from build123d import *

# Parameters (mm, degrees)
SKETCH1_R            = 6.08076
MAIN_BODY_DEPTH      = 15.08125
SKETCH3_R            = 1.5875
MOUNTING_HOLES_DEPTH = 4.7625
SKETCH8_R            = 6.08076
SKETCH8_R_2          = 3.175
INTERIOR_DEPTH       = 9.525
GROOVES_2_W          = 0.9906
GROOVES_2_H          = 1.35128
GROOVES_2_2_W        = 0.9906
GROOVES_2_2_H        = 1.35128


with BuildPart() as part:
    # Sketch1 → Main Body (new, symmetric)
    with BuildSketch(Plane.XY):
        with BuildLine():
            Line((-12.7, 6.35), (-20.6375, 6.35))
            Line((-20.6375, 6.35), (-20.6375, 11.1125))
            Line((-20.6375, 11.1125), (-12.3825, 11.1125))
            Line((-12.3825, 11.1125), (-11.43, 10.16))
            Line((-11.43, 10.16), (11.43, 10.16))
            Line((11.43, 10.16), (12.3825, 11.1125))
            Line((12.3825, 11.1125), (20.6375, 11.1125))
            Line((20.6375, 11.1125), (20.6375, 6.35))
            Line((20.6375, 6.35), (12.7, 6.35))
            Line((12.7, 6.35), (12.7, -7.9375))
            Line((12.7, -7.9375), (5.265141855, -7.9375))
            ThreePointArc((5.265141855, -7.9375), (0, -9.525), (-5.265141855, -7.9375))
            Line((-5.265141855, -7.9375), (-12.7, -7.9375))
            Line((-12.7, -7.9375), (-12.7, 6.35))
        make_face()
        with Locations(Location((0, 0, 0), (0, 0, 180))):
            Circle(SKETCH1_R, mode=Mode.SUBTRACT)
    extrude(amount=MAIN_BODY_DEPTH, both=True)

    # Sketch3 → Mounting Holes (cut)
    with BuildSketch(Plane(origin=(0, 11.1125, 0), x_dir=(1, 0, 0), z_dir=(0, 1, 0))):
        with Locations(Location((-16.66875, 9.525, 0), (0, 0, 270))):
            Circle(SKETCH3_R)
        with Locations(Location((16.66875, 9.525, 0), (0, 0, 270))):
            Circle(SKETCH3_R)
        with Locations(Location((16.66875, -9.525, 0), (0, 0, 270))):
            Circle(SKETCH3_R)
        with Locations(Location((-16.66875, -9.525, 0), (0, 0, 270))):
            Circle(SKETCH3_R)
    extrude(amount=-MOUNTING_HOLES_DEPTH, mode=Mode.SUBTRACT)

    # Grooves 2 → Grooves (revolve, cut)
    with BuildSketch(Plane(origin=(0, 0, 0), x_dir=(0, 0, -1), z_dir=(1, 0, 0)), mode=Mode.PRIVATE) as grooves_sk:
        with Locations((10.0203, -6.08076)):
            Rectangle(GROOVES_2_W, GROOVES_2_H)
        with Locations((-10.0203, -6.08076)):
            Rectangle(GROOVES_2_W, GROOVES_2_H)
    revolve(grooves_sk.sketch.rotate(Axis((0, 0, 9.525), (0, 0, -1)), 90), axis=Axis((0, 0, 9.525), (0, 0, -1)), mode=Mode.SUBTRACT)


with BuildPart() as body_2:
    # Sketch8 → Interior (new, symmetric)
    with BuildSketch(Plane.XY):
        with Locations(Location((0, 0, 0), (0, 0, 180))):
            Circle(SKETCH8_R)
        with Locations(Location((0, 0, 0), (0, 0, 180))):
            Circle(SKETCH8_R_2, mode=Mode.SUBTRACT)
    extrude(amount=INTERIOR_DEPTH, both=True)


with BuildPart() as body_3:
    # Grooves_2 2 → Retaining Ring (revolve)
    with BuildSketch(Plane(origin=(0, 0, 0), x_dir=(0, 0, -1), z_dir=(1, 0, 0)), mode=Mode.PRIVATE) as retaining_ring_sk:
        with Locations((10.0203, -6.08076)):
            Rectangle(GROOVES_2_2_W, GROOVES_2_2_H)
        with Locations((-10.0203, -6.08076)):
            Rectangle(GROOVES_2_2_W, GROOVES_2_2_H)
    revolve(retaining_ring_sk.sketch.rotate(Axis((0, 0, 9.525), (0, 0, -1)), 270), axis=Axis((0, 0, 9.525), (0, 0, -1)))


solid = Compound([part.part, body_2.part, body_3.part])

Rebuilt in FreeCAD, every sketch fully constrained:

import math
import FreeCAD as App
import Part
import Sketcher
from FreeCAD import Vector
Q = App.Units.Quantity

doc = App.newDocument("Part")
body = doc.addObject("PartDesign::Body", "Body")

# Sketch on XY plane
sketch1 = doc.addObject("Sketcher::SketchObject", "Sketch")
body.addObject(sketch1)
sketch1.AttachmentSupport = (doc.XY_Plane, [""])
sketch1.MapMode = "FlatFace"
sketch1.addGeometry(Part.LineSegment(Vector(-20.6, 6.3, 0), Vector(-12.7, 6.3, 0)), False)
sketch1.addGeometry(Part.LineSegment(Vector(-12.7, 6.3, 0), Vector(-12.7, -7.9, 0)), False)
sketch1.addGeometry(Part.LineSegment(Vector(-12.7, -7.9, 0), Vector(-5.3, -7.9, 0)), False)
sketch1.addGeometry(Part.ArcOfCircle(Part.Circle(Vector(0, 0, 0), Vector(0, 0, 1), 9.5), math.radians(-124), math.radians(-56)), False)
sketch1.addGeometry(Part.LineSegment(Vector(5.3, -7.9, 0), Vector(12.7, -7.9, 0)), False)
sketch1.addGeometry(Part.LineSegment(Vector(12.7, -7.9, 0), Vector(12.7, 6.3, 0)), False)
sketch1.addGeometry(Part.LineSegment(Vector(12.7, 6.3, 0), Vector(20.6, 6.3, 0)), False)
sketch1.addGeometry(Part.LineSegment(Vector(20.6, 6.3, 0), Vector(20.6, 11.1, 0)), False)
sketch1.addGeometry(Part.LineSegment(Vector(20.6, 11.1, 0), Vector(12.4, 11.1, 0)), False)
sketch1.addGeometry(Part.LineSegment(Vector(12.4, 11.1, 0), Vector(11.4, 10.2, 0)), False)
sketch1.addGeometry(Part.LineSegment(Vector(11.4, 10.2, 0), Vector(-11.4, 10.2, 0)), False)
sketch1.addGeometry(Part.LineSegment(Vector(-11.4, 10.2, 0), Vector(-12.4, 11.1, 0)), False)
sketch1.addGeometry(Part.LineSegment(Vector(-12.4, 11.1, 0), Vector(-20.6, 11.1, 0)), False)
sketch1.addGeometry(Part.LineSegment(Vector(-20.6, 11.1, 0), Vector(-20.6, 6.3, 0)), False)
sketch1.addGeometry(Part.Circle(Vector(0, 0, 0), Vector(0, 0, 1), 6.1), False)
sketch1.addConstraint(Sketcher.Constraint("Coincident", 0, 2, 1, 1))
sketch1.addConstraint(Sketcher.Constraint("Coincident", 1, 2, 2, 1))
sketch1.addConstraint(Sketcher.Constraint("Coincident", 2, 2, 3, 1))
sketch1.addConstraint(Sketcher.Constraint("Coincident", 3, 2, 4, 1))
sketch1.addConstraint(Sketcher.Constraint("Coincident", 4, 2, 5, 1))
sketch1.addConstraint(Sketcher.Constraint("Coincident", 5, 2, 6, 1))
sketch1.addConstraint(Sketcher.Constraint("Coincident", 6, 2, 7, 1))
sketch1.addConstraint(Sketcher.Constraint("Coincident", 7, 2, 8, 1))
sketch1.addConstraint(Sketcher.Constraint("Coincident", 8, 2, 9, 1))
sketch1.addConstraint(Sketcher.Constraint("Coincident", 9, 2, 10, 1))
sketch1.addConstraint(Sketcher.Constraint("Coincident", 10, 2, 11, 1))
sketch1.addConstraint(Sketcher.Constraint("Coincident", 11, 2, 12, 1))
sketch1.addConstraint(Sketcher.Constraint("Coincident", 12, 2, 13, 1))
sketch1.addConstraint(Sketcher.Constraint("Coincident", 13, 2, 0, 1))
sketch1.addConstraint(Sketcher.Constraint("Horizontal", 0))
sketch1.addConstraint(Sketcher.Constraint("Vertical", 1))
sketch1.addConstraint(Sketcher.Constraint("Horizontal", 2))
sketch1.addConstraint(Sketcher.Constraint("Horizontal", 4))
sketch1.addConstraint(Sketcher.Constraint("Vertical", 5))
sketch1.addConstraint(Sketcher.Constraint("Horizontal", 6))
sketch1.addConstraint(Sketcher.Constraint("Vertical", 7))
sketch1.addConstraint(Sketcher.Constraint("Horizontal", 8))
sketch1.addConstraint(Sketcher.Constraint("Horizontal", 10))
sketch1.addConstraint(Sketcher.Constraint("Horizontal", 12))
sketch1.addConstraint(Sketcher.Constraint("Vertical", 13))
sketch1.addConstraint(Sketcher.Constraint("Coincident", 3, 3, -1, 1))
sketch1.addConstraint(Sketcher.Constraint("Coincident", 14, 3, -1, 1))
sketch1.addConstraint(Sketcher.Constraint("Symmetric", 1, 2, 4, 2, -2))
sketch1.addConstraint(Sketcher.Constraint("Symmetric", 8, 2, 11, 2, -2))
sketch1.addConstraint(Sketcher.Constraint("Symmetric", 6, 2, 13, 2, -2))
sketch1.addConstraint(Sketcher.Constraint("Perpendicular", 9, 11))
sketch1.addConstraint(Sketcher.Constraint("Equal", 9, 11))
sketch1.addConstraint(Sketcher.Constraint("DistanceX", 10, 2, 10, 1, Q("0.9 in")))
sketch1.addConstraint(Sketcher.Constraint("Radius", 3, Q("0.375 in")))
sketch1.addConstraint(Sketcher.Constraint("DistanceX", 1, 2, 4, 2, Q("1 in")))
sketch1.addConstraint(Sketcher.Constraint("Diameter", 14, Q("0.4788 in")))
sketch1.addConstraint(Sketcher.Constraint("DistanceY", -1, 1, 9, 2, Q("0.4 in")))
sketch1.addConstraint(Sketcher.Constraint("DistanceX", 0, 1, 0, 2, Q("0.3125 in")))
sketch1.addConstraint(Sketcher.Constraint("DistanceX", 8, 2, 8, 1, Q("0.325 in")))
sketch1.addConstraint(Sketcher.Constraint("DistanceY", 1, 2, 1, 1, Q("0.5625 in")))
sketch1.addConstraint(Sketcher.Constraint("DistanceY", 7, 1, 7, 2, Q("0.1875 in")))
pad1 = doc.addObject("PartDesign::Pad", "Pad")
body.addObject(pad1)
pad1.Profile = sketch1
pad1.Length = Q("1.1875 in")
pad1.Midplane = True

# Sketch on XZ plane
sketch2 = doc.addObject("Sketcher::SketchObject", "Sketch001")
body.addObject(sketch2)
sketch2.AttachmentSupport = (doc.XZ_Plane, [""])
sketch2.MapMode = "FlatFace"
sketch2.AttachmentOffset = App.Placement(Vector(0, 0, -0.4375 * 25.4), App.Rotation())
sketch2.addGeometry(Part.Circle(Vector(-16.7, -9.5, 0), Vector(0, 0, 1), 1.6), False)
sketch2.addGeometry(Part.Circle(Vector(16.7, -9.5, 0), Vector(0, 0, 1), 1.6), False)
sketch2.addGeometry(Part.Circle(Vector(16.7, 9.5, 0), Vector(0, 0, 1), 1.6), False)
sketch2.addGeometry(Part.Circle(Vector(-16.7, 9.5, 0), Vector(0, 0, 1), 1.6), False)
sketch2.addConstraint(Sketcher.Constraint("Equal", 0, 1))
sketch2.addConstraint(Sketcher.Constraint("Equal", 1, 2))
sketch2.addConstraint(Sketcher.Constraint("Equal", 2, 3))
sketch2.addConstraint(Sketcher.Constraint("Symmetric", 0, 3, 2, 3, -1, 1))
sketch2.addConstraint(Sketcher.Constraint("Symmetric", 1, 3, 3, 3, -1, 1))
sketch2.addConstraint(Sketcher.Constraint("Symmetric", 0, 3, 1, 3, -2))
sketch2.addConstraint(Sketcher.Constraint("Diameter", 0, Q("0.125 in")))
sketch2.addConstraint(Sketcher.Constraint("DistanceY", 1, 3, 2, 3, Q("0.75 in")))
sketch2.addConstraint(Sketcher.Constraint("DistanceX", 0, 3, -1, 1, Q("0.65625 in")))
pocket1 = doc.addObject("PartDesign::Pocket", "Pocket")
body.addObject(pocket1)
pocket1.Profile = sketch2
pocket1.Length = Q("0.1875 in")
pocket1.Reversed = True

# Sketch on YZ plane
sketch3 = doc.addObject("Sketcher::SketchObject", "Sketch002")
body.addObject(sketch3)
sketch3.AttachmentSupport = (doc.YZ_Plane, [""])
sketch3.MapMode = "FlatFace"
sketch3.addGeometry(Part.LineSegment(Vector(-5.4, -9.5, 0), Vector(-6.8, -9.5, 0)), False)
sketch3.addGeometry(Part.LineSegment(Vector(-6.8, -9.5, 0), Vector(-6.8, -10.5, 0)), False)
sketch3.addGeometry(Part.LineSegment(Vector(-6.8, -10.5, 0), Vector(-5.4, -10.5, 0)), False)
sketch3.addGeometry(Part.LineSegment(Vector(-5.4, -10.5, 0), Vector(-5.4, -9.5, 0)), False)
sketch3.addGeometry(Part.LineSegment(Vector(-5.4, 10.5, 0), Vector(-6.8, 10.5, 0)), False)
sketch3.addGeometry(Part.LineSegment(Vector(-6.8, 10.5, 0), Vector(-6.8, 9.5, 0)), False)
sketch3.addGeometry(Part.LineSegment(Vector(-6.8, 9.5, 0), Vector(-5.4, 9.5, 0)), False)
sketch3.addGeometry(Part.LineSegment(Vector(-5.4, 9.5, 0), Vector(-5.4, 10.5, 0)), False)
sketch3.addConstraint(Sketcher.Constraint("Coincident", 0, 2, 1, 1))
sketch3.addConstraint(Sketcher.Constraint("Coincident", 1, 2, 2, 1))
sketch3.addConstraint(Sketcher.Constraint("Coincident", 2, 2, 3, 1))
sketch3.addConstraint(Sketcher.Constraint("Coincident", 3, 2, 0, 1))
sketch3.addConstraint(Sketcher.Constraint("Coincident", 4, 2, 5, 1))
sketch3.addConstraint(Sketcher.Constraint("Coincident", 5, 2, 6, 1))
sketch3.addConstraint(Sketcher.Constraint("Coincident", 6, 2, 7, 1))
sketch3.addConstraint(Sketcher.Constraint("Coincident", 7, 2, 4, 1))
sketch3.addConstraint(Sketcher.Constraint("Horizontal", 0))
sketch3.addConstraint(Sketcher.Constraint("Vertical", 1))
sketch3.addConstraint(Sketcher.Constraint("Horizontal", 2))
sketch3.addConstraint(Sketcher.Constraint("Vertical", 3))
sketch3.addConstraint(Sketcher.Constraint("Horizontal", 4))
sketch3.addConstraint(Sketcher.Constraint("Vertical", 5))
sketch3.addConstraint(Sketcher.Constraint("Horizontal", 6))
sketch3.addConstraint(Sketcher.Constraint("Vertical", 7))
sketch3.addConstraint(Sketcher.Constraint("Symmetric", 1, 2, 4, 2, -1))
sketch3.addConstraint(Sketcher.Constraint("Symmetric", 3, 2, 6, 2, -1))
sketch3.addConstraint(Sketcher.Constraint("DistanceY", 1, 2, 1, 1, Q("0.039 in")))
sketch3.addConstraint(Sketcher.Constraint("DistanceY", 0, 2, 5, 2, Q("0.75 in")))
sketch3.addConstraint(Sketcher.Constraint("DistanceX", 0, 2, 0, 1, Q("0.0532 in")))
sketch3.addConstraint(Sketcher.Constraint("DistanceX", 0, 2, -1, 1, Q("0.266 in")))
groove = doc.addObject("PartDesign::Groove", "Groove")
body.addObject(groove)
groove.Profile = sketch3
groove.ReferenceAxis = (sketch3, ["V_Axis"])
groove.Angle = 360
body2 = doc.addObject("PartDesign::Body", "Body001")

# Sketch on XY plane
sketch4 = doc.addObject("Sketcher::SketchObject", "Sketch003")
body2.addObject(sketch4)
sketch4.AttachmentSupport = (doc.getObject("XY_Plane001"), [""])
sketch4.MapMode = "FlatFace"
sketch4.addGeometry(Part.Circle(Vector(0, 0, 0), Vector(0, 0, 1), 6.1), False)
sketch4.addGeometry(Part.Circle(Vector(0, 0, 0), Vector(0, 0, 1), 3.2), False)
sketch4.addConstraint(Sketcher.Constraint("Coincident", 0, 3, -1, 1))
sketch4.addConstraint(Sketcher.Constraint("Coincident", 1, 3, -1, 1))
sketch4.addConstraint(Sketcher.Constraint("Diameter", 1, Q("0.25 in")))
sketch4.addConstraint(Sketcher.Constraint("Diameter", 0, Q("0.4788 in")))
pad2 = doc.addObject("PartDesign::Pad", "Pad001")
body2.addObject(pad2)
pad2.Profile = sketch4
pad2.Length = Q("0.75 in")
pad2.Midplane = True
body3 = doc.addObject("PartDesign::Body", "Body002")
body3.AllowCompound = True

# Sketch on YZ plane
sketch5 = doc.addObject("Sketcher::SketchObject", "Sketch004")
body3.addObject(sketch5)
sketch5.AttachmentSupport = (doc.getObject("YZ_Plane002"), [""])
sketch5.MapMode = "FlatFace"
sketch5.addGeometry(Part.LineSegment(Vector(-5.4, -9.5, 0), Vector(-6.8, -9.5, 0)), False)
sketch5.addGeometry(Part.LineSegment(Vector(-6.8, -9.5, 0), Vector(-6.8, -10.5, 0)), False)
sketch5.addGeometry(Part.LineSegment(Vector(-6.8, -10.5, 0), Vector(-5.4, -10.5, 0)), False)
sketch5.addGeometry(Part.LineSegment(Vector(-5.4, -10.5, 0), Vector(-5.4, -9.5, 0)), False)
sketch5.addGeometry(Part.LineSegment(Vector(-5.4, 10.5, 0), Vector(-6.8, 10.5, 0)), False)
sketch5.addGeometry(Part.LineSegment(Vector(-6.8, 10.5, 0), Vector(-6.8, 9.5, 0)), False)
sketch5.addGeometry(Part.LineSegment(Vector(-6.8, 9.5, 0), Vector(-5.4, 9.5, 0)), False)
sketch5.addGeometry(Part.LineSegment(Vector(-5.4, 9.5, 0), Vector(-5.4, 10.5, 0)), False)
sketch5.addConstraint(Sketcher.Constraint("Coincident", 0, 2, 1, 1))
sketch5.addConstraint(Sketcher.Constraint("Coincident", 1, 2, 2, 1))
sketch5.addConstraint(Sketcher.Constraint("Coincident", 2, 2, 3, 1))
sketch5.addConstraint(Sketcher.Constraint("Coincident", 3, 2, 0, 1))
sketch5.addConstraint(Sketcher.Constraint("Coincident", 4, 2, 5, 1))
sketch5.addConstraint(Sketcher.Constraint("Coincident", 5, 2, 6, 1))
sketch5.addConstraint(Sketcher.Constraint("Coincident", 6, 2, 7, 1))
sketch5.addConstraint(Sketcher.Constraint("Coincident", 7, 2, 4, 1))
sketch5.addConstraint(Sketcher.Constraint("Horizontal", 0))
sketch5.addConstraint(Sketcher.Constraint("Vertical", 1))
sketch5.addConstraint(Sketcher.Constraint("Horizontal", 2))
sketch5.addConstraint(Sketcher.Constraint("Vertical", 3))
sketch5.addConstraint(Sketcher.Constraint("Horizontal", 4))
sketch5.addConstraint(Sketcher.Constraint("Vertical", 5))
sketch5.addConstraint(Sketcher.Constraint("Horizontal", 6))
sketch5.addConstraint(Sketcher.Constraint("Vertical", 7))
sketch5.addConstraint(Sketcher.Constraint("Symmetric", 1, 2, 4, 2, -1))
sketch5.addConstraint(Sketcher.Constraint("Symmetric", 3, 2, 6, 2, -1))
sketch5.addConstraint(Sketcher.Constraint("DistanceY", 1, 2, 1, 1, Q("0.039 in")))
sketch5.addConstraint(Sketcher.Constraint("DistanceY", 0, 2, 5, 2, Q("0.75 in")))
sketch5.addConstraint(Sketcher.Constraint("DistanceX", 0, 2, 0, 1, Q("0.0532 in")))
sketch5.addConstraint(Sketcher.Constraint("DistanceX", 0, 2, -1, 1, Q("0.266 in")))
revolution = doc.addObject("PartDesign::Revolution", "Revolution")
body3.addObject(revolution)
revolution.Profile = sketch5
revolution.ReferenceAxis = (sketch5, ["V_Axis"])
revolution.Angle = 360

doc.recompute()
